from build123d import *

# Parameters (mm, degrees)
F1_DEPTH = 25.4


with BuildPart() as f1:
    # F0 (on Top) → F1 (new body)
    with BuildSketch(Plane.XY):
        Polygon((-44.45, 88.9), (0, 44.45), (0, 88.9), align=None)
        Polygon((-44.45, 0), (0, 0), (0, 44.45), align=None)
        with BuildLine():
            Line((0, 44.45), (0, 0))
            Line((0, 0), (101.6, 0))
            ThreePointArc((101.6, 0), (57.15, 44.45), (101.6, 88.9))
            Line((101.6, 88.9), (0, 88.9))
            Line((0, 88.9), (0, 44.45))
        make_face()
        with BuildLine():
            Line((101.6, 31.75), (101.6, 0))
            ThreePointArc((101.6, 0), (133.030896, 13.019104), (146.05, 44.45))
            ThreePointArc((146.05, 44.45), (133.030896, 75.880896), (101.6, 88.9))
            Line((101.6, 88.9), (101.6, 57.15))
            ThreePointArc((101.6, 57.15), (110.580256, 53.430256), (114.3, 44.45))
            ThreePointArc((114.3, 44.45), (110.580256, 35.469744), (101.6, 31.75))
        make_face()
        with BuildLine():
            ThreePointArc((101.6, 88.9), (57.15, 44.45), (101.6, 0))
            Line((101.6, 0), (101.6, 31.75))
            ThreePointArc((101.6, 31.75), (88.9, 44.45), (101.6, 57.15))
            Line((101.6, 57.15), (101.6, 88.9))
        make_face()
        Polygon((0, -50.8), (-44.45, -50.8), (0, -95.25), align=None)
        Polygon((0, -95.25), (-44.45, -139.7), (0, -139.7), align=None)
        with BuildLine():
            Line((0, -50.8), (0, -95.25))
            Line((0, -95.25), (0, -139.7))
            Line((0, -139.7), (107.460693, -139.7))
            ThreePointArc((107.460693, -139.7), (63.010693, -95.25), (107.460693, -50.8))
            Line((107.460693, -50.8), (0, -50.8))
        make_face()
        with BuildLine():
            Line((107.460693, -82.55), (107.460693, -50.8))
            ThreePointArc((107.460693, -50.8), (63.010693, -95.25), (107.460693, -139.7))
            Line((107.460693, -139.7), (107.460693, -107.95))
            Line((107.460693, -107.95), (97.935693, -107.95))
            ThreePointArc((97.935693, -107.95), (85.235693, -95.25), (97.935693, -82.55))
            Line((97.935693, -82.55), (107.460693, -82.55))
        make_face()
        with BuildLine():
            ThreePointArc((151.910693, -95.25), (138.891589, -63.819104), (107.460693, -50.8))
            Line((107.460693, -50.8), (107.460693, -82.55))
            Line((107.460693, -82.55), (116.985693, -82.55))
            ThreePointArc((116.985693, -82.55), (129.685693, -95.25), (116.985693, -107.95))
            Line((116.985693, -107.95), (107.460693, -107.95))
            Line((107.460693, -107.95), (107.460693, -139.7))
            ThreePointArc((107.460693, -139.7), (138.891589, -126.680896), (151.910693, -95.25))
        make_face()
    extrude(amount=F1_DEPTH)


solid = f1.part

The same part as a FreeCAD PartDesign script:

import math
import FreeCAD as App
import Part
import Sketcher

V = App.Vector
Q = App.Units.Quantity

doc = App.newDocument("Part")
body = doc.addObject("PartDesign::Body", "Body")
body.AllowCompound = True

sketch1 = doc.addObject("Sketcher::SketchObject", "Sketch")
body.addObject(sketch1)
sketch1.AttachmentSupport = (doc.XY_Plane, [""])
sketch1.MapMode = "FlatFace"
sketch1.addGeometry(Part.LineSegment(V(-44, 89, 0), V(0, 44, 0)), False)
sketch1.addGeometry(Part.LineSegment(V(0, 44, 0), V(-44, 0, 0)), False)
sketch1.addGeometry(Part.LineSegment(V(-44, 0, 0), V(102, 0, 0)), False)
sketch1.addGeometry(Part.ArcOfCircle(Part.Circle(V(102, 44, 0), V(0, 0, 1), 44), math.radians(-90), math.radians(0)), False)
sketch1.addGeometry(Part.ArcOfCircle(Part.Circle(V(102, 44, 0), V(0, 0, 1), 44), math.radians(0), math.radians(90)), False)
sketch1.addGeometry(Part.LineSegment(V(102, 89, 0), V(-44, 89, 0)), False)
sketch1.addGeometry(Part.ArcOfCircle(Part.Circle(V(102, 44, 0), V(0, 0, 1), 13), math.radians(90), math.radians(270)), False)
sketch1.addGeometry(Part.ArcOfCircle(Part.Circle(V(102, 44, 0), V(0, 0, 1), 13), math.radians(0), math.radians(90)), False)
sketch1.addGeometry(Part.ArcOfCircle(Part.Circle(V(102, 44, 0), V(0, 0, 1), 13), math.radians(-90), math.radians(0)), False)
sketch1.addGeometry(Part.LineSegment(V(-44, -51, 0), V(0, -95, 0)), False)
sketch1.addGeometry(Part.LineSegment(V(0, -95, 0), V(-44, -140, 0)), False)
sketch1.addGeometry(Part.LineSegment(V(-44, -140, 0), V(107, -140, 0)), False)
sketch1.addGeometry(Part.ArcOfCircle(Part.Circle(V(107, -95, 0), V(0, 0, 1), 44), math.radians(-90), math.radians(0)), False)
sketch1.addGeometry(Part.ArcOfCircle(Part.Circle(V(107, -95, 0), V(0, 0, 1), 44), math.radians(0), math.radians(90)), False)
sketch1.addGeometry(Part.LineSegment(V(107, -51, 0), V(-44, -51, 0)), False)
sketch1.addGeometry(Part.ArcOfCircle(Part.Circle(V(98, -95, 0), V(0, 0, 1), 13), math.radians(90), math.radians(270)), False)
sketch1.addGeometry(Part.LineSegment(V(98, -83, 0), V(117, -83, 0)), False)
sketch1.addGeometry(Part.ArcOfCircle(Part.Circle(V(117, -95, 0), V(0, 0, 1), 13), math.radians(-90), math.radians(90)), False)
sketch1.addGeometry(Part.LineSegment(V(117, -108, 0), V(98, -108, 0)), False)
sketch1.addConstraint(Sketcher.Constraint("Coincident", 0, 2, 1, 1))
sketch1.addConstraint(Sketcher.Constraint("Coincident", 1, 2, 2, 1))
sketch1.addConstraint(Sketcher.Constraint("Tangent", 2, 2, 3, 1))
sketch1.addConstraint(Sketcher.Constraint("Tangent", 3, 2, 4, 1))
sketch1.addConstraint(Sketcher.Constraint("Tangent", 4, 2, 5, 1))
sketch1.addConstraint(Sketcher.Constraint("Coincident", 5, 2, 0, 1))
sketch1.addConstraint(Sketcher.Constraint("Tangent", 6, 1, 7, 2))
sketch1.addConstraint(Sketcher.Constraint("Tangent", 7, 1, 8, 2))
sketch1.addConstraint(Sketcher.Constraint("Tangent", 8, 1, 6, 2))
sketch1.addConstraint(Sketcher.Constraint("Coincident", 9, 2, 10, 1))
sketch1.addConstraint(Sketcher.Constraint("Coincident", 10, 2, 11, 1))
sketch1.addConstraint(Sketcher.Constraint("Tangent", 11, 2, 12, 1))
sketch1.addConstraint(Sketcher.Constraint("Tangent", 12, 2, 13, 1))
sketch1.addConstraint(Sketcher.Constraint("Tangent", 13, 2, 14, 1))
sketch1.addConstraint(Sketcher.Constraint("Coincident", 14, 2, 9, 1))
sketch1.addConstraint(Sketcher.Constraint("Tangent", 15, 1, 16, 1))
sketch1.addConstraint(Sketcher.Constraint("Tangent", 16, 2, 17, 2))
sketch1.addConstraint(Sketcher.Constraint("Tangent", 17, 1, 18, 1))
sketch1.addConstraint(Sketcher.Constraint("Tangent", 18, 2, 15, 2))
sketch1.addConstraint(Sketcher.Constraint("Horizontal", 2))
sketch1.addConstraint(Sketcher.Constraint("Horizontal", 5))
sketch1.addConstraint(Sketcher.Constraint("Horizontal", 11))
sketch1.addConstraint(Sketcher.Constraint("Horizontal", 14))
sketch1.addConstraint(Sketcher.Constraint("Horizontal", 16))
sketch1.addConstraint(Sketcher.Constraint("Horizontal", 18))
sketch1.addConstraint(Sketcher.Constraint("Coincident", 6, 3, 3, 3))
sketch1.addConstraint(Sketcher.Constraint("Equal", 3, 4))
sketch1.addConstraint(Sketcher.Constraint("Equal", 4, 12))
sketch1.addConstraint(Sketcher.Constraint("Equal", 12, 13))
sketch1.addConstraint(Sketcher.Constraint("Equal", 8, 15))
sketch1.addConstraint(Sketcher.Constraint("PointOnObject", 0, 2, -2))
sketch1.addConstraint(Sketcher.Constraint("PointOnObject", 1, 2, -1))
sketch1.addConstraint(Sketcher.Constraint("PointOnObject", 9, 2, -2))
sketch1.addConstraint(Sketcher.Constraint("Perpendicular", 0, 1))
sketch1.addConstraint(Sketcher.Constraint("Perpendicular", 1, 9))
sketch1.addConstraint(Sketcher.Constraint("Perpendicular", 9, 10))
sketch1.addConstraint(Sketcher.Constraint("Horizontal", 13, 3, 15, 3))
sketch1.addConstraint(Sketcher.Constraint("Horizontal", 8, 3, 0, 2))
sketch1.addConstraint(Sketcher.Constraint("Horizontal", 0, 2, 3, 2))
sketch1.addConstraint(Sketcher.Constraint("Horizontal", 3, 2, 7, 1))
sketch1.addConstraint(Sketcher.Constraint("Horizontal", 17, 3, 9, 2))
sketch1.addConstraint(Sketcher.Constraint("Horizontal", 9, 2, 12, 2))
sketch1.addConstraint(Sketcher.Constraint("Vertical", 1, 2, 5, 2))
sketch1.addConstraint(Sketcher.Constraint("Vertical", 4, 2, 6, 1))
sketch1.addConstraint(Sketcher.Constraint("Vertical", 6, 1, 8, 1))
sketch1.addConstraint(Sketcher.Constraint("Radius", 6, Q("0.5 in")))
sketch1.addConstraint(Sketcher.Constraint("Radius", 3, Q("1.7500001 in")))
sketch1.addConstraint(Sketcher.Constraint("DistanceX", -1, 1, 3, 3, Q("3.9999999 in")))
sketch1.addConstraint(Sketcher.Constraint("DistanceY", 13, 2, -1, 1, Q("2 in")))
sketch1.addConstraint(Sketcher.Constraint("DistanceX", 16, 1, 16, 2, Q("0.75 in")))
sketch1.addConstraint(Sketcher.Constraint("DistanceX", 15, 3, 12, 3, Q("0.3749999 in")))
sketch1.addConstraint(Sketcher.Constraint("DistanceX", 11, 1, 11, 2, Q("151.910693 mm")))
pad1 = doc.addObject("PartDesign::Pad", "Pad")
body.addObject(pad1)
pad1.Profile = sketch1
pad1.Length = Q("1 in")

doc.recompute()
